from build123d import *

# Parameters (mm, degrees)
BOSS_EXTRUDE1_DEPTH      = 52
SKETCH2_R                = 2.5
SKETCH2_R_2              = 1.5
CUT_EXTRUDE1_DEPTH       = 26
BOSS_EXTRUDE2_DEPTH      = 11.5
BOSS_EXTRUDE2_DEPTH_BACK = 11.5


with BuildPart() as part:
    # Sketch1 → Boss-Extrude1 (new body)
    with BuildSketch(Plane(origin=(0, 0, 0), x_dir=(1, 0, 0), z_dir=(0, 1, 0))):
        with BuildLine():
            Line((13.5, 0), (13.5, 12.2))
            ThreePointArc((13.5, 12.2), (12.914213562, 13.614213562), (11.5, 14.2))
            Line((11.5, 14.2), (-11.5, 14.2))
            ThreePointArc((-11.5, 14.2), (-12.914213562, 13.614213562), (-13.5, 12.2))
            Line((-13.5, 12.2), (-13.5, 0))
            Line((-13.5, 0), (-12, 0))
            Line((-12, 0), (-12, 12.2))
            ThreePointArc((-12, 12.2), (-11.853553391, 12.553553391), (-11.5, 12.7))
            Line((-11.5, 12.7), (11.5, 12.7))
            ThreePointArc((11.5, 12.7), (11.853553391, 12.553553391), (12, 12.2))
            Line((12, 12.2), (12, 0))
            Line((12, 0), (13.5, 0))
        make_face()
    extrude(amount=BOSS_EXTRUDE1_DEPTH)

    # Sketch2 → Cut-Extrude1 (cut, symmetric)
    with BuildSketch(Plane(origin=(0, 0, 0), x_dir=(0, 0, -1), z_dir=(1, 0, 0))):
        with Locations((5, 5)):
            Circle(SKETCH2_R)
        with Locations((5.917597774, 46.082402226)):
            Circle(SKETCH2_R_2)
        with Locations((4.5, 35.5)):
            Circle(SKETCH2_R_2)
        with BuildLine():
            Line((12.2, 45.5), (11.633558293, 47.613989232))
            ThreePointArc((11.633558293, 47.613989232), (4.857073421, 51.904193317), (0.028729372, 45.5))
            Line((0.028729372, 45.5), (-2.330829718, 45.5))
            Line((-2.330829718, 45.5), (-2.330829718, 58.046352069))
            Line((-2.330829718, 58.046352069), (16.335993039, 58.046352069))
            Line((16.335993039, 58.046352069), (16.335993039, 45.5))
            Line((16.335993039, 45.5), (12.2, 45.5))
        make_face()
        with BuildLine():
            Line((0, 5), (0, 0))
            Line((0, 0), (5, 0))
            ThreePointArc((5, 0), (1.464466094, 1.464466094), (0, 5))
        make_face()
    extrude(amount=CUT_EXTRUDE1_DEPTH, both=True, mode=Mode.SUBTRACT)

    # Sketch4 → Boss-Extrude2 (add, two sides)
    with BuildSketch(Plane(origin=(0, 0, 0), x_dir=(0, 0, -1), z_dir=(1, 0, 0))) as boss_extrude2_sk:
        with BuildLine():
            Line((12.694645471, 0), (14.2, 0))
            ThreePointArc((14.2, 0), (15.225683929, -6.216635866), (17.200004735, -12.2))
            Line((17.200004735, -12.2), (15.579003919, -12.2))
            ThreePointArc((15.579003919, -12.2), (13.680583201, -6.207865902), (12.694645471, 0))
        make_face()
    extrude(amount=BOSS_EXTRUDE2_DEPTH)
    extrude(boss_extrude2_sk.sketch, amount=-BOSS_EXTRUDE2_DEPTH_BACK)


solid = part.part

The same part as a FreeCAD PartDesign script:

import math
import FreeCAD as App
import Part
import Sketcher
Q = App.Units.Quantity

doc = App.newDocument("Part")
body = doc.addObject("PartDesign::Body", "Body")

sketch1 = body.newObject("Sketcher::SketchObject", "Sketch")
sketch1.AttachmentSupport = (doc.getObject("XZ_Plane"), [""])
sketch1.MapMode = "FlatFace"
sketch1.addGeometry([
    Part.LineSegment(App.Vector(13.5, 0, 0), App.Vector(13.5, -12.2, 0)),
    Part.ArcOfCircle(Part.Circle(App.Vector(11.5, -12.2, 0), App.Vector(0, 0, 1), 2), math.radians(-90), math.radians(0)),
    Part.LineSegment(App.Vector(11.5, -14.2, 0), App.Vector(-11.5, -14.2, 0)),
    Part.ArcOfCircle(Part.Circle(App.Vector(-11.5, -12.2, 0), App.Vector(0, 0, 1), 2), math.radians(-180), math.radians(-90)),
    Part.LineSegment(App.Vector(-13.5, -12.2, 0), App.Vector(-13.5, 0, 0)),
    Part.LineSegment(App.Vector(-13.5, 0, 0), App.Vector(-12, 0, 0)),
    Part.LineSegment(App.Vector(-12, 0, 0), App.Vector(-12, -12.2, 0)),
    Part.ArcOfCircle(Part.Circle(App.Vector(-11.5, -12.2, 0), App.Vector(0, 0, 1), 0.5), math.radians(180), math.radians(270)),
    Part.LineSegment(App.Vector(-11.5, -12.7, 0), App.Vector(11.5, -12.7, 0)),
    Part.ArcOfCircle(Part.Circle(App.Vector(11.5, -12.2, 0), App.Vector(0, 0, 1), 0.5), math.radians(-90), math.radians(0)),
    Part.LineSegment(App.Vector(12, -12.2, 0), App.Vector(12, 0, 0)),
    Part.LineSegment(App.Vector(12, 0, 0), App.Vector(13.5, 0, 0)),
], False)
sketch1.addConstraint([
    Sketcher.Constraint("Tangent", 0, 2, 1, 2),
    Sketcher.Constraint("Tangent", 1, 1, 2, 1),
    Sketcher.Constraint("Tangent", 2, 2, 3, 2),
    Sketcher.Constraint("Tangent", 3, 1, 4, 1),
    Sketcher.Constraint("Coincident", 4, 2, 5, 1),
    Sketcher.Constraint("Coincident", 5, 2, 6, 1),
    Sketcher.Constraint("Tangent", 6, 2, 7, 1),
    Sketcher.Constraint("Tangent", 7, 2, 8, 1),
    Sketcher.Constraint("Tangent", 8, 2, 9, 1),
    Sketcher.Constraint("Tangent", 9, 2, 10, 1),
    Sketcher.Constraint("Coincident", 10, 2, 11, 1),
    Sketcher.Constraint("Coincident", 11, 2, 0, 1),
    Sketcher.Constraint("Vertical", 0),
    Sketcher.Constraint("Horizontal", 2),
    Sketcher.Constraint("Vertical", 4),
    Sketcher.Constraint("Horizontal", 5),
    Sketcher.Constraint("Vertical", 6),
    Sketcher.Constraint("Horizontal", 8),
    Sketcher.Constraint("Vertical", 10),
    Sketcher.Constraint("Horizontal", 11),
    Sketcher.Constraint("Coincident", 7, 3, 3, 3),
    Sketcher.Constraint("Coincident", 9, 3, 1, 3),
    Sketcher.Constraint("Equal", 1, 3),
    Sketcher.Constraint("Symmetric", 5, 2, 10, 2, -1, 1),
    Sketcher.Constraint("PointOnObject", 4, 2, -1),
    Sketcher.Constraint("Radius", 1, Q("2 mm")),
    Sketcher.Constraint("Radius", 7, Q("0.5 mm")),
    Sketcher.Constraint("DistanceX", 2, 2, 2, 1, Q("23 mm")),
    Sketcher.Constraint("DistanceY", 0, 2, 0, 1, Q("12.2 mm")),
])
pad1 = body.newObject("PartDesign::Pad", "Pad")
pad1.Profile = sketch1
pad1.Length = 52
pad1.Reversed = True

sketch2 = body.newObject("Sketcher::SketchObject", "Sketch001")
sketch2.AttachmentSupport = (doc.getObject("YZ_Plane"), [""])
sketch2.MapMode = "FlatFace"
sketch2.addGeometry([
    Part.Circle(App.Vector(5, -5, 0), App.Vector(0, 0, 1), 2.5),
    Part.Circle(App.Vector(46.082402, -5.917598, 0), App.Vector(0, 0, 1), 1.5),
    Part.Circle(App.Vector(35.5, -4.5, 0), App.Vector(0, 0, 1), 1.5),
    Part.LineSegment(App.Vector(47.613989, -11.633558, 0), App.Vector(45.5, -12.2, 0)),
    Part.LineSegment(App.Vector(45.5, -12.2, 0), App.Vector(45.5, -16.335993, 0)),
    Part.LineSegment(App.Vector(45.5, -16.335993, 0), App.Vector(58.046352, -16.335993, 0)),
    Part.LineSegment(App.Vector(58.046352, -16.335993, 0), App.Vector(58.046352, 2.33083, 0)),
    Part.LineSegment(App.Vector(58.046352, 2.33083, 0), App.Vector(45.5, 2.33083, 0)),
    Part.LineSegment(App.Vector(45.5, 2.33083, 0), App.Vector(45.5, -0.028729, 0)),
    Part.ArcOfCircle(Part.Circle(App.Vector(46.082402, -5.917598, 0), App.Vector(0, 0, 1), 5.917598), math.radians(-75), math.radians(95.648119)),
    Part.LineSegment(App.Vector(5, 0, 0), App.Vector(0, 0, 0)),
    Part.LineSegment(App.Vector(0, 0, 0), App.Vector(0, -5, 0)),
    Part.ArcOfCircle(Part.Circle(App.Vector(5, -5, 0), App.Vector(0, 0, 1), 5), math.radians(90), math.radians(180)),
], False)
sketch2.addConstraint([
    Sketcher.Constraint("Coincident", 3, 2, 4, 1),
    Sketcher.Constraint("Coincident", 4, 2, 5, 1),
    Sketcher.Constraint("Coincident", 5, 2, 6, 1),
    Sketcher.Constraint("Coincident", 6, 2, 7, 1),
    Sketcher.Constraint("Coincident", 7, 2, 8, 1),
    Sketcher.Constraint("Coincident", 8, 2, 9, 2),
    Sketcher.Constraint("Tangent", 9, 1, 3, 1),
    Sketcher.Constraint("Coincident", 10, 2, 11, 1),
    Sketcher.Constraint("Tangent", 11, 2, 12, 2),
    Sketcher.Constraint("Tangent", 12, 1, 10, 1),
    Sketcher.Constraint("Vertical", 4),
    Sketcher.Constraint("Horizontal", 5),
    Sketcher.Constraint("Vertical", 6),
    Sketcher.Constraint("Horizontal", 7),
    Sketcher.Constraint("Vertical", 8),
    Sketcher.Constraint("Horizontal", 10),
    Sketcher.Constraint("Vertical", 11),
    Sketcher.Constraint("Coincident", 10, 2, -1, 1),
    Sketcher.Constraint("Coincident", 9, 3, 1, 3),
    Sketcher.Constraint("Coincident", 12, 3, 0, 3),
    Sketcher.Constraint("Equal", 1, 2),
    Sketcher.Constraint("Vertical", 4, 2, 7, 2),
    Sketcher.Constraint("Diameter", 0, Q("5 mm")),
    Sketcher.Constraint("Diameter", 1, Q("3 mm")),
    Sketcher.Constraint("Radius", 12, Q("5 mm")),
    Sketcher.Constraint("Angle", 3, Q("-165 deg")),
    Sketcher.Constraint("DistanceX", 2, 3, 3, 2, Q("10 mm")),
    Sketcher.Constraint("DistanceX", -1, 1, 2, 3, Q("35.5 mm")),
    Sketcher.Constraint("DistanceY", 2, 3, -1, 1, Q("4.5 mm")),
    Sketcher.Constraint("DistanceY", 3, 2, -1, 1, Q("12.2 mm")),
    Sketcher.Constraint("Radius", 9, Q("5.917598 mm")),
    Sketcher.Constraint("DistanceY", 8, 2, 8, 1, Q("2.359559 mm")),
    Sketcher.Constraint("DistanceX", 5, 1, 5, 2, Q("12.546352 mm")),
    Sketcher.Constraint("DistanceY", 4, 2, 4, 1, Q("4.135993 mm")),
    Sketcher.Constraint("DistanceY", 6, 1, 6, 2, Q("18.666823 mm")),
])
pocket1 = body.newObject("PartDesign::Pocket", "Pocket")
pocket1.Profile = sketch2
pocket1.Length = 52
pocket1.Midplane = True

sketch3 = body.newObject("Sketcher::SketchObject", "Sketch002")
sketch3.AttachmentSupport = (doc.getObject("YZ_Plane"), [""])
sketch3.MapMode = "FlatFace"
sketch3.addGeometry([
    Part.LineSegment(App.Vector(0, -14.2, 0), App.Vector(0, -12.694645, 0)),
    Part.ArcOfCircle(Part.Circle(App.Vector(3.487116, -54.687546, 0), App.Vector(0, 0, 1), 42.137438), math.radians(94.746985), math.radians(111.856579)),
    Part.LineSegment(App.Vector(-12.2, -15.579004, 0), App.Vector(-12.2, -17.200005, 0)),
    Part.ArcOfCircle(Part.Circle(App.Vector(3.487116, -54.687546, 0), App.Vector(0, 0, 1), 40.637438), math.radians(94.922629), math.radians(112.707463)),
], False)
sketch3.addConstraint([
    Sketcher.Constraint("Coincident", 0, 2, 1, 1),
    Sketcher.Constraint("Coincident", 1, 2, 2, 1),
    Sketcher.Constraint("Coincident", 2, 2, 3, 2),
    Sketcher.Constraint("Coincident", 3, 1, 0, 1),
    Sketcher.Constraint("Vertical", 0),
    Sketcher.Constraint("Vertical", 2),
    Sketcher.Constraint("Coincident", 3, 3, 1, 3),
    Sketcher.Constraint("PointOnObject", 0, 2, -2),
    Sketcher.Constraint("DistanceX", 1, 2, -1, 1, Q("12.2 mm")),
    Sketcher.Constraint("DistanceY", 3, 1, -1, 1, Q("14.2 mm")),
    Sketcher.Constraint("DistanceY", 2, 2, 2, 1, Q("1.621001 mm")),
    Sketcher.Constraint("Radius", 1, Q("42.137438 mm")),
    Sketcher.Constraint("Radius", 3, Q("40.637438 mm")),
])
pad2 = body.newObject("PartDesign::Pad", "Pad001")
pad2.Profile = sketch3
pad2.Type = "TwoLengths"
pad2.Length = 11.5
pad2.Length2 = 11.5

doc.recompute()
